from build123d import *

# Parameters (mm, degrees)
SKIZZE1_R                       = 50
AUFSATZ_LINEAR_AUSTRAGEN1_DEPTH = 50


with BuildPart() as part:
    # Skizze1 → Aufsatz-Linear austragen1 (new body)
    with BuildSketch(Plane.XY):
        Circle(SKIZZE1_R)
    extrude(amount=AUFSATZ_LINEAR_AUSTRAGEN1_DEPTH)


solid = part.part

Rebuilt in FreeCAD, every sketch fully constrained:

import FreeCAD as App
import Part
import Sketcher
Q = App.Units.Quantity

doc = App.newDocument("Part")
body = doc.addObject("PartDesign::Body", "Body")

sketch1 = body.newObject("Sketcher::SketchObject", "Sketch")
sketch1.AttachmentSupport = (doc.getObject("XY_Plane"), [""])
sketch1.MapMode = "FlatFace"
sketch1.addGeometry(Part.Circle(App.Vector(0, 0, 0), App.Vector(0, 0, 1), 50), False)
sketch1.addConstraint(Sketcher.Constraint("Coincident", 0, 3, -1, 1))
sketch1.addConstraint(Sketcher.Constraint("Diameter", 0, Q("100 mm")))
pad1 = body.newObject("PartDesign::Pad", "Pad")
pad1.Profile = sketch1
pad1.Length = 50

doc.recompute()
